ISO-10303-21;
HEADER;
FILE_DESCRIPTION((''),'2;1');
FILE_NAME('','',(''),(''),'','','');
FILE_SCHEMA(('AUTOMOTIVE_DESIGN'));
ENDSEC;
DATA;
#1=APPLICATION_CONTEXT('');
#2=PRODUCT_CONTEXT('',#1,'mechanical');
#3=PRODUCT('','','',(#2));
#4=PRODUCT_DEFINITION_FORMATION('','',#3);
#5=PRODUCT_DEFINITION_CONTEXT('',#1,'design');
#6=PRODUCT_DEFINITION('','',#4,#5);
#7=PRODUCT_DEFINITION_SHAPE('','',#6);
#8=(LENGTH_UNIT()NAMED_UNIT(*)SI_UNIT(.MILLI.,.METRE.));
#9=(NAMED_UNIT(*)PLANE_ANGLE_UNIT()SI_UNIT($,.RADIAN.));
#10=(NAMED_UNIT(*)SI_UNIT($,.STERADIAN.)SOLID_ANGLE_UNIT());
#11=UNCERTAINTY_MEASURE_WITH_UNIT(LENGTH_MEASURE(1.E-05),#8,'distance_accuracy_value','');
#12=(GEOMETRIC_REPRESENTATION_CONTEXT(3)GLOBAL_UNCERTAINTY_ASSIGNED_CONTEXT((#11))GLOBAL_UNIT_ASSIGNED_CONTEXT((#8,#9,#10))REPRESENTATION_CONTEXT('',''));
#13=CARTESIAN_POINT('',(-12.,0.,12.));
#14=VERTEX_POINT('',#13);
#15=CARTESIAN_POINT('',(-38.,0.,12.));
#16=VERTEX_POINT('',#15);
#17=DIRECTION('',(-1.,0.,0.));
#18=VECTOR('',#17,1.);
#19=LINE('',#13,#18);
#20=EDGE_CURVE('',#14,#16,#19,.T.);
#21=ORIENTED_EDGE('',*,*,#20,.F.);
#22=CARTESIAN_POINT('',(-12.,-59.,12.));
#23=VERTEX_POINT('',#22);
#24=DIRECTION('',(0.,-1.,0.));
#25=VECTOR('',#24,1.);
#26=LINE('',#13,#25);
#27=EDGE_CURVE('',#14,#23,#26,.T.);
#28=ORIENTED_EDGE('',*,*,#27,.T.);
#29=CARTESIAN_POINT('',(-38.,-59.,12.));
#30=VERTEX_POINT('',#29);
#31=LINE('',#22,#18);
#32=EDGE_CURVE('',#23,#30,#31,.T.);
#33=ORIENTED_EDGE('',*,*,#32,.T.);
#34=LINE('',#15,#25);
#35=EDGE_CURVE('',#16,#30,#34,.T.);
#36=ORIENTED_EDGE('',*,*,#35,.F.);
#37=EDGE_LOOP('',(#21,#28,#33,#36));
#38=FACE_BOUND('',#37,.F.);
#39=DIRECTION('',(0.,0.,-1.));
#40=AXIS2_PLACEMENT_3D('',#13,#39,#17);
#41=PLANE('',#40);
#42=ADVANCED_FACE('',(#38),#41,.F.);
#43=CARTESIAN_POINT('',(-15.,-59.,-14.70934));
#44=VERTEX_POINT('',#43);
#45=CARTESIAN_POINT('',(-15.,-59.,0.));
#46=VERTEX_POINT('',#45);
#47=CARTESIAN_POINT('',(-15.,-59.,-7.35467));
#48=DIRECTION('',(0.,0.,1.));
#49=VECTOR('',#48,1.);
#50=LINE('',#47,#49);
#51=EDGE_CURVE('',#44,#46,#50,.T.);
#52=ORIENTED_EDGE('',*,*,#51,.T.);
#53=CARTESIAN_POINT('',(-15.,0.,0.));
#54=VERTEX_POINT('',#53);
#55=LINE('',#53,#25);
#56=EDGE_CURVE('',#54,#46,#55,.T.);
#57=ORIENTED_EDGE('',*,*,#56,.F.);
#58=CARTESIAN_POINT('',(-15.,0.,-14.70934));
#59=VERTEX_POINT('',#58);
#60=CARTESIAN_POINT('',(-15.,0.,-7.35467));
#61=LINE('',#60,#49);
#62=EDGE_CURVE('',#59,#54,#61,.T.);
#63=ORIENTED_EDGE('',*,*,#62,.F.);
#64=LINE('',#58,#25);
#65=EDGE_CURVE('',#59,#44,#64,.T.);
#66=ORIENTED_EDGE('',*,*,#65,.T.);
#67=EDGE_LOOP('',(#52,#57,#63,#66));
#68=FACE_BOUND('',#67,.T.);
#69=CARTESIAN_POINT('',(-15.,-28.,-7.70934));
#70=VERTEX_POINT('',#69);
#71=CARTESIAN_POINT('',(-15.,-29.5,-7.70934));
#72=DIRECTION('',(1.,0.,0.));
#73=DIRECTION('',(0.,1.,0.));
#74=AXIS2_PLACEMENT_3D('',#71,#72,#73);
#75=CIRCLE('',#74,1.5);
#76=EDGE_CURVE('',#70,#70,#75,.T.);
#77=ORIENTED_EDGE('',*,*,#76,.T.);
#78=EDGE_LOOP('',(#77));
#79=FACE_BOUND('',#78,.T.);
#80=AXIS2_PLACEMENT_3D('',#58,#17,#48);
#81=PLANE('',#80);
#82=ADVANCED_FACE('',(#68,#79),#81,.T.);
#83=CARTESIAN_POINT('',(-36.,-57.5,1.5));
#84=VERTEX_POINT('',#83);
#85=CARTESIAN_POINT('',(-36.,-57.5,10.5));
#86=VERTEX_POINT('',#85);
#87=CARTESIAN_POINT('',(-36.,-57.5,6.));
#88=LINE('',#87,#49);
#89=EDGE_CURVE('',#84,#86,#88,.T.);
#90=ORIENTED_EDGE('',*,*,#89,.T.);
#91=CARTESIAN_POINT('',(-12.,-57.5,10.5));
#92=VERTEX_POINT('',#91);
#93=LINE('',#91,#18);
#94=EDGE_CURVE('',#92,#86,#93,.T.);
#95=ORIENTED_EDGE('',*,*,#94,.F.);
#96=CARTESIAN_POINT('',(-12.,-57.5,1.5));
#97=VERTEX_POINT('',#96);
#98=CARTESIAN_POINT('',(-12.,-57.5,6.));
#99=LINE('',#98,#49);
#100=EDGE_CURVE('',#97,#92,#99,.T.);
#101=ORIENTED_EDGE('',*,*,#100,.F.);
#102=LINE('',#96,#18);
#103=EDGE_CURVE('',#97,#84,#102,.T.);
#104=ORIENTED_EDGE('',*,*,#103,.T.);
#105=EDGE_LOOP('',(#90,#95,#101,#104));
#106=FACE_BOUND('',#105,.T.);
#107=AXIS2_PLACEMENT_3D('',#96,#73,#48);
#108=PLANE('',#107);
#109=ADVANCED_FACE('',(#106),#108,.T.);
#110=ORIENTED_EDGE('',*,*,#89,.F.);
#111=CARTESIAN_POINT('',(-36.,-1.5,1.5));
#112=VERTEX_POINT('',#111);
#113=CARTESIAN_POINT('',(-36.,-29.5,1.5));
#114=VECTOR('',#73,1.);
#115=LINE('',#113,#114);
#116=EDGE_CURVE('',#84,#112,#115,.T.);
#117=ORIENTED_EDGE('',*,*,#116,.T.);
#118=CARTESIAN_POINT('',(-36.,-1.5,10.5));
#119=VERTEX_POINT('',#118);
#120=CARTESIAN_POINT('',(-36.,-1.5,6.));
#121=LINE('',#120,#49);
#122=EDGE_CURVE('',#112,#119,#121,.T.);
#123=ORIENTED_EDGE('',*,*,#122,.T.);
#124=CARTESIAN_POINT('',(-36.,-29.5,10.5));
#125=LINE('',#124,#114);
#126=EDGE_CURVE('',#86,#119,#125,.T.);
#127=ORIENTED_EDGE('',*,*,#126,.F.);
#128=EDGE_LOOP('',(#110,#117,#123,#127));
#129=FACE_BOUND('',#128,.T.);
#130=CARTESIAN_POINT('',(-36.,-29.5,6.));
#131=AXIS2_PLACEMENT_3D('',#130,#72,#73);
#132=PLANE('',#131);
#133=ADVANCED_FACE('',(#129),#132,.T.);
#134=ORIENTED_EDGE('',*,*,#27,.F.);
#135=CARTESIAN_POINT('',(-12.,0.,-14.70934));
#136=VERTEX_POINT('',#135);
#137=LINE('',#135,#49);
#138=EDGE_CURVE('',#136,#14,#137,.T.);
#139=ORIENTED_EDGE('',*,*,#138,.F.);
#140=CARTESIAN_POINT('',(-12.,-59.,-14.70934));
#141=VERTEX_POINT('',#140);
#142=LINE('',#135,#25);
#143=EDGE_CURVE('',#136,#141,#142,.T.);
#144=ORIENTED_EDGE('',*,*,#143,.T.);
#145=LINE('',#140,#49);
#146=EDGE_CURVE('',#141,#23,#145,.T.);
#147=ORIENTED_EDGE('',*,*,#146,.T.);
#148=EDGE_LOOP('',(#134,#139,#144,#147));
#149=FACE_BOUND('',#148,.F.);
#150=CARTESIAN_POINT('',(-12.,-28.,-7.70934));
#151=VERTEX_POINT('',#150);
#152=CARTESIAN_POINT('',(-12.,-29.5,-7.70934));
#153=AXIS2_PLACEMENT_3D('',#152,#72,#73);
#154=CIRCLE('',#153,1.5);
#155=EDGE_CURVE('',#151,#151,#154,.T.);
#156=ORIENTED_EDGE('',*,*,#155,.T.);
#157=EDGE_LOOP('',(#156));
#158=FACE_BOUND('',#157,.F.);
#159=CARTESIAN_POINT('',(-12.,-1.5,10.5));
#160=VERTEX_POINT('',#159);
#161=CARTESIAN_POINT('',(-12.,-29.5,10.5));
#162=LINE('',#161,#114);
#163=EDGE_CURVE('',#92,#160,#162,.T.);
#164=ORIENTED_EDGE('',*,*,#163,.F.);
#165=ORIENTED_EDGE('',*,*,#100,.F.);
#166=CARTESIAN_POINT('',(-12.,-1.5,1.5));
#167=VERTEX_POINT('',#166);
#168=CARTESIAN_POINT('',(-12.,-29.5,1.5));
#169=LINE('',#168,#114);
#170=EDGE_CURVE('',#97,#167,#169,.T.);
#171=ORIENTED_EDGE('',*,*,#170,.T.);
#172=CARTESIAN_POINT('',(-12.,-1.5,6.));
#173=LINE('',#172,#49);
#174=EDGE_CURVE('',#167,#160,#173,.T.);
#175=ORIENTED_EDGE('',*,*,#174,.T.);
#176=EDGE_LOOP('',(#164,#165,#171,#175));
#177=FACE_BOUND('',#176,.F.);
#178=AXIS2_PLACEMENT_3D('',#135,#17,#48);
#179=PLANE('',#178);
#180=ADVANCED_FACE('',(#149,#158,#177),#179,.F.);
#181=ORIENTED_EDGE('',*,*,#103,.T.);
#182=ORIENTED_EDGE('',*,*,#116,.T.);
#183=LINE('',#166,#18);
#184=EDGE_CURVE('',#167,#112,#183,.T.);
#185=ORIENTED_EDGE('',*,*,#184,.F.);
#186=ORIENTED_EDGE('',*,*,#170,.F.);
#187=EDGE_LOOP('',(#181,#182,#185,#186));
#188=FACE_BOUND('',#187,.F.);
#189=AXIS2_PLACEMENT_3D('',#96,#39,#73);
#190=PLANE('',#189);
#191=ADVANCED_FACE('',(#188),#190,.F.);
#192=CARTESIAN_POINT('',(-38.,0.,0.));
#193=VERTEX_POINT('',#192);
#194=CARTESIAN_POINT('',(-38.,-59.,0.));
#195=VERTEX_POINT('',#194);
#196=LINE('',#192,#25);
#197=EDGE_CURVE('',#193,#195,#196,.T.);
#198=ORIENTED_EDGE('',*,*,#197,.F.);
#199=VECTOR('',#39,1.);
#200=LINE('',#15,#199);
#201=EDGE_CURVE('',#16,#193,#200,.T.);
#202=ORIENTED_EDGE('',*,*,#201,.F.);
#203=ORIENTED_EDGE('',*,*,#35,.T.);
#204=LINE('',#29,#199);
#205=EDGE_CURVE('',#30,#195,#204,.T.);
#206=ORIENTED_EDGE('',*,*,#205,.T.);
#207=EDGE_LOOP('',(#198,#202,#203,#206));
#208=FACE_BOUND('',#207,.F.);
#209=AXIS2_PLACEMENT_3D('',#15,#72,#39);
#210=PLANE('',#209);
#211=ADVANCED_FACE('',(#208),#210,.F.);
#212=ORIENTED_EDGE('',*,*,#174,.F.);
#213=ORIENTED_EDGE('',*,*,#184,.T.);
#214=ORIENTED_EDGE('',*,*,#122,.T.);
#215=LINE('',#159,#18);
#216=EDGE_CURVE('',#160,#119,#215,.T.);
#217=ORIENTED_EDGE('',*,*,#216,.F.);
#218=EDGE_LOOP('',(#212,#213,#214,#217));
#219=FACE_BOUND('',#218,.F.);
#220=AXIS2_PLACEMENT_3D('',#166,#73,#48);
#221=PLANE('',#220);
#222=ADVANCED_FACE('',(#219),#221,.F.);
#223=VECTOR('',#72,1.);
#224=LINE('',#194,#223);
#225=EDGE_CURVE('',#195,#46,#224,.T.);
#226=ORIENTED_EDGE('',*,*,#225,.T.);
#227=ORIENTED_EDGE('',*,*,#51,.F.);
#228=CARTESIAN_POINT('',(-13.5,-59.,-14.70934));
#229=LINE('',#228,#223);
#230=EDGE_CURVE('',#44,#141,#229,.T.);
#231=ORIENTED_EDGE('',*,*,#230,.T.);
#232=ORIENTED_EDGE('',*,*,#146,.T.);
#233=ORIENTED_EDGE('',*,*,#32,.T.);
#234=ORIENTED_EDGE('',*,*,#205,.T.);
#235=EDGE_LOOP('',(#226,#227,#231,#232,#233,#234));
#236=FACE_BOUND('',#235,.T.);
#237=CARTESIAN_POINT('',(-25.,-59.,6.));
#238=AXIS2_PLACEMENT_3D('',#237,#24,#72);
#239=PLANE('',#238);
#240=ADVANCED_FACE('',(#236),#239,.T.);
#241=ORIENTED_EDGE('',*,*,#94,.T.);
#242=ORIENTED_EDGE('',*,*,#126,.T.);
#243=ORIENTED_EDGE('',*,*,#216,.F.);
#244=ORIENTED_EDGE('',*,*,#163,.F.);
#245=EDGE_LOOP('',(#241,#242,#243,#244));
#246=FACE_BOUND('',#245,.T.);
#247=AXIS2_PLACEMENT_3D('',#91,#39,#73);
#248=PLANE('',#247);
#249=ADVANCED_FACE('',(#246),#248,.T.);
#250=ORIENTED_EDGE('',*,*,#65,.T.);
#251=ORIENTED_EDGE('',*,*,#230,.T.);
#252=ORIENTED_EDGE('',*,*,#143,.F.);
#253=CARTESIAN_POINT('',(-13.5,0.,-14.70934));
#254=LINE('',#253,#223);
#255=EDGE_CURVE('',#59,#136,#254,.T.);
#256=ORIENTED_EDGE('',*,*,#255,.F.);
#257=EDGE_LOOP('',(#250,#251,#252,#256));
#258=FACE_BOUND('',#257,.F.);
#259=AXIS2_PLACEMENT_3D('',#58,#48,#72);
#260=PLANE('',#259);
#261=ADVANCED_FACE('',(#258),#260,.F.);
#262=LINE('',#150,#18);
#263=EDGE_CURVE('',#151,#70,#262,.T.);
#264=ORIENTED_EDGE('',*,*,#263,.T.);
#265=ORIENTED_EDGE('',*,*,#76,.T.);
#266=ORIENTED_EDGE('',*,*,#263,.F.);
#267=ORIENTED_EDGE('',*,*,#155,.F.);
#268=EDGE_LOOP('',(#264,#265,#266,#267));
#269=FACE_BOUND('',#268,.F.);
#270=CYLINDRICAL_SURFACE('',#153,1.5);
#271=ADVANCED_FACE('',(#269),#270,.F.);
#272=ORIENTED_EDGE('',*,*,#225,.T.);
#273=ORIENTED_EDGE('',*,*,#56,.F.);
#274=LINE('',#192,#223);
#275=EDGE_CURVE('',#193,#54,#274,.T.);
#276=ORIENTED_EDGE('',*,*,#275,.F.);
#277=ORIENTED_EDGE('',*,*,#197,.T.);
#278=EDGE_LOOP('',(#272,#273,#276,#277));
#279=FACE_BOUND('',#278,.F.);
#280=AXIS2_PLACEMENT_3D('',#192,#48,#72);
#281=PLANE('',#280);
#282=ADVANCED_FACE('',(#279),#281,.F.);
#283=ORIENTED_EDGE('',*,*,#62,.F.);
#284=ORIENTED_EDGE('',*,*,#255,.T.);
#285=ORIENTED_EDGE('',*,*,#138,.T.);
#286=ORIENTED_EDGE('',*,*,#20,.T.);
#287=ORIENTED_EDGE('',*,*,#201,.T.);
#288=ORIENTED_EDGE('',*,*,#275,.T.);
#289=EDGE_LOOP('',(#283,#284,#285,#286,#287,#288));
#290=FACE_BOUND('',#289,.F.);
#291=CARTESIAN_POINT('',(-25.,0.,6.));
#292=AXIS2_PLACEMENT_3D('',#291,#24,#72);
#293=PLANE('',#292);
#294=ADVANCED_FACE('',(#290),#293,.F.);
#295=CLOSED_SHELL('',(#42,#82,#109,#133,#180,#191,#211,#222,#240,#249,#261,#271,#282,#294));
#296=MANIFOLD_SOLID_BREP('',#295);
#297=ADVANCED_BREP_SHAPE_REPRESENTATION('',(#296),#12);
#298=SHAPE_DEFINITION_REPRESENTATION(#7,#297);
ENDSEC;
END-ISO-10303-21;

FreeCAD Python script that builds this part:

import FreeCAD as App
import Part
import Sketcher

V = App.Vector


def add_polygon(sketch, points):
    """Adds a closed chain of lines whose ends are joined by coincident constraints."""
    first, n = sketch.GeometryCount, len(points)
    for a, b in zip(points, points[1:] + points[:1]):
        sketch.addGeometry(Part.LineSegment(App.Vector(*a, 0), App.Vector(*b, 0)), False)
    for i in range(n):
        sketch.addConstraint(Sketcher.Constraint("Coincident", first + i, 2, first + (i + 1) % n, 1))

doc = App.newDocument("Part")
params = doc.addObject("Spreadsheet::Sheet", "Params")
for row, (alias, value) in enumerate([
    ("sketch1_width", "26 mm"),
    ("sketch1_width2", "23 mm"),
    ("sketch1_height", "12 mm"),
    ("pad1_length", "59 mm"),
    ("sketch2_diameter", "3 mm"),
    ("pocket1_length", "4 mm"),
    ("sketch3_diameter", "3 mm"),
    ("sketch3_width", "56 mm"),
    ("sketch3_height", "9 mm"),
    ("pocket2_length", "24 mm"),
], start=1):
    params.set(f"A{row}", alias)
    params.set(f"B{row}", "=" + value)
    params.setAlias(f"B{row}", alias)

body = doc.addObject("PartDesign::Body", "Body")

# Sketch on XZ plane
sketch1 = doc.addObject("Sketcher::SketchObject", "Sketch")
body.addObject(sketch1)
sketch1.AttachmentSupport = (doc.XZ_Plane, [""])
sketch1.MapMode = "FlatFace"
add_polygon(sketch1, [(-12, 12), (-38, 12), (-38, 0), (-15, 0), (-15, -14.70934), (-12, -14.70934)])  # lines 0-5
sketch1.addConstraint([
    Sketcher.Constraint("Horizontal", 0),
    Sketcher.Constraint("Vertical", 1),
    Sketcher.Constraint("Horizontal", 2),
    Sketcher.Constraint("Vertical", 3),
    Sketcher.Constraint("Horizontal", 4),
    Sketcher.Constraint("Vertical", 5),
    Sketcher.Constraint("PointOnObject", 1, 2, -1),
    Sketcher.Constraint("DistanceX", 0, 2, 0, 1, 26.0),
    Sketcher.Constraint("DistanceX", 2, 1, 2, 2, 23.0),
    Sketcher.Constraint("DistanceY", 1, 2, 1, 1, 12.0),
    Sketcher.Constraint("DistanceX", 0, 2, -1, 1, 38.0),
    Sketcher.Constraint("DistanceY", 3, 2, 3, 1, 14.70934),
])
sketch1.setExpression("Constraints[13]", "Params.sketch1_width")
sketch1.setExpression("Constraints[14]", "Params.sketch1_width2")
sketch1.setExpression("Constraints[15]", "Params.sketch1_height")
pad1 = doc.addObject("PartDesign::Pad", "Pad")
body.addObject(pad1)
pad1.Profile = sketch1
pad1.setExpression("Length", "Params.pad1_length")

# Sketch on YZ plane
sketch2 = doc.addObject("Sketcher::SketchObject", "Sketch001")
body.addObject(sketch2)
sketch2.AttachmentSupport = (doc.YZ_Plane, [""])
sketch2.MapMode = "FlatFace"
sketch2.AttachmentOffset = App.Placement(V(0, 0, -12), App.Rotation())
sketch2.addGeometry(Part.Circle(V(-29.5, -7.70934, 0), V(0, 0, 1), 1.5), False)
sketch2.addConstraint([
    Sketcher.Constraint("Diameter", 0, 3.0),
    Sketcher.Constraint("DistanceX", 0, 3, -1, 1, 29.5),
    Sketcher.Constraint("DistanceY", 0, 3, -1, 1, 7.70934),
])
sketch2.setExpression("Constraints[0]", "Params.sketch2_diameter")
pocket1 = doc.addObject("PartDesign::Pocket", "Pocket")
body.addObject(pocket1)
pocket1.Profile = sketch2
pocket1.setExpression("Length", "Params.pocket1_length")

# Sketch on YZ plane
sketch3 = doc.addObject("Sketcher::SketchObject", "Sketch002")
body.addObject(sketch3)
sketch3.AttachmentSupport = (doc.YZ_Plane, [""])
sketch3.MapMode = "FlatFace"
sketch3.AttachmentOffset = App.Placement(V(0, 0, -12), App.Rotation())
add_polygon(sketch3, [(-57.5, 10.5), (-57.5, 1.5), (-1.5, 1.5), (-1.5, 10.5)])  # lines 0-3
sketch3.addGeometry(Part.Circle(V(-29.5, -7.70934, 0), V(0, 0, 1), 1.5), False)  # 4
sketch3.addConstraint([
    Sketcher.Constraint("Vertical", 0),
    Sketcher.Constraint("Horizontal", 1),
    Sketcher.Constraint("Vertical", 2),
    Sketcher.Constraint("Horizontal", 3),
    Sketcher.Constraint("Diameter", 4, 3.0),
    Sketcher.Constraint("DistanceX", 1, 1, 1, 2, 56.0),
    Sketcher.Constraint("DistanceY", 0, 2, 0, 1, 9.0),
    Sketcher.Constraint("DistanceX", 0, 2, 4, 3, 28.0),
    Sketcher.Constraint("DistanceX", 4, 3, -1, 1, 29.5),
    Sketcher.Constraint("DistanceY", -1, 1, 0, 2, 1.5),
    Sketcher.Constraint("DistanceY", 4, 3, -1, 1, 7.70934),
])
sketch3.setExpression("Constraints[8]", "Params.sketch3_diameter")
sketch3.setExpression("Constraints[9]", "Params.sketch3_width")
sketch3.setExpression("Constraints[10]", "Params.sketch3_height")
pocket2 = doc.addObject("PartDesign::Pocket", "Pocket001")
body.addObject(pocket2)
pocket2.Profile = sketch3
pocket2.setExpression("Length", "Params.pocket2_length")

doc.recompute()
